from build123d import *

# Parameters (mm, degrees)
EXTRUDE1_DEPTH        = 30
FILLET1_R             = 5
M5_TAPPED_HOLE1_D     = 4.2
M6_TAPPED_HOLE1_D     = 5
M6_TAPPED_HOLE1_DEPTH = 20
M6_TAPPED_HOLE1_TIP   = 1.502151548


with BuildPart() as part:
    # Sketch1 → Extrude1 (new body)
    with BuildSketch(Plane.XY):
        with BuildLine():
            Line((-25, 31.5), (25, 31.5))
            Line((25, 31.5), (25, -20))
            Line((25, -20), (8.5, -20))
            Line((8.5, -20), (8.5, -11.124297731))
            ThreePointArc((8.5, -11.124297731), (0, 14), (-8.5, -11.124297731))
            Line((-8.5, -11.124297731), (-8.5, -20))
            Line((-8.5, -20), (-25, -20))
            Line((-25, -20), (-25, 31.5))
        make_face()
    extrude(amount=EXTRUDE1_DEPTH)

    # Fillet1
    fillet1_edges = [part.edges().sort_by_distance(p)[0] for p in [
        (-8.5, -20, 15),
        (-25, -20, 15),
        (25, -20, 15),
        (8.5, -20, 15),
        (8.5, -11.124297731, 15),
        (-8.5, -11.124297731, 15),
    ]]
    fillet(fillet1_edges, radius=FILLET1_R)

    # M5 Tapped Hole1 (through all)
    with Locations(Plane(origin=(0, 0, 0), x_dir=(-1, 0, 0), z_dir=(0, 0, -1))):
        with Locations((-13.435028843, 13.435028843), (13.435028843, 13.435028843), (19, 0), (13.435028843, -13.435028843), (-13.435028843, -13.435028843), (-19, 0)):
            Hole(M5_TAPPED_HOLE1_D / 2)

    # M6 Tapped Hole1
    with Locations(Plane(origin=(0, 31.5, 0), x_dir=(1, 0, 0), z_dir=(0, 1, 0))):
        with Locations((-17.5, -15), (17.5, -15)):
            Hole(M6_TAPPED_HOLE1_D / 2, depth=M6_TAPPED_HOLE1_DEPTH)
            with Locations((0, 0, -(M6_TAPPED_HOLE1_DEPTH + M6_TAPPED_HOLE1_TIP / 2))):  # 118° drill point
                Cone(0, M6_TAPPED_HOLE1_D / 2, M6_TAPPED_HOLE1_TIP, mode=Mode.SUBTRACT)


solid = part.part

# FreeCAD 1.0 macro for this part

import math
import FreeCAD as App
import Part
import Sketcher


def edges_at(feature, points):
    """Names of the edges that pass closest to the given points."""
    edges = feature.Shape.Edges
    near = lambda p: min(range(len(edges)), key=lambda i: edges[i].distToShape(Part.Vertex(*p))[0])
    return sorted({f"Edge{near(p) + 1}" for p in points})

doc = App.newDocument("Part")
body = doc.addObject("PartDesign::Body", "Body")

# Sketch on XY plane
sketch1 = body.newObject("Sketcher::SketchObject", "Sketch")
sketch1.AttachmentSupport = (doc.getObject("XY_Plane"), [""])
sketch1.MapMode = "FlatFace"
sketch1.addGeometry(Part.LineSegment(App.Vector(25, 32, 0), App.Vector(-25, 32, 0)), False)
sketch1.addGeometry(Part.LineSegment(App.Vector(-25, 32, 0), App.Vector(-25, -20, 0)), False)
sketch1.addGeometry(Part.LineSegment(App.Vector(-25, -20, 0), App.Vector(-8, -20, 0)), False)
sketch1.addGeometry(Part.LineSegment(App.Vector(-8, -20, 0), App.Vector(-8, -11, 0)), False)
sketch1.addGeometry(Part.ArcOfCircle(Part.Circle(App.Vector(0, 0, 0), App.Vector(0, 0, 1), 14), math.radians(-53), math.radians(233)), False)
sketch1.addGeometry(Part.LineSegment(App.Vector(8, -11, 0), App.Vector(8, -20, 0)), False)
sketch1.addGeometry(Part.LineSegment(App.Vector(8, -20, 0), App.Vector(25, -20, 0)), False)
sketch1.addGeometry(Part.LineSegment(App.Vector(25, -20, 0), App.Vector(25, 32, 0)), False)
sketch1.addConstraint(Sketcher.Constraint("Coincident", 0, 2, 1, 1))
sketch1.addConstraint(Sketcher.Constraint("Coincident", 1, 2, 2, 1))
sketch1.addConstraint(Sketcher.Constraint("Coincident", 2, 2, 3, 1))
sketch1.addConstraint(Sketcher.Constraint("Coincident", 3, 2, 4, 2))
sketch1.addConstraint(Sketcher.Constraint("Coincident", 4, 1, 5, 1))
sketch1.addConstraint(Sketcher.Constraint("Coincident", 5, 2, 6, 1))
sketch1.addConstraint(Sketcher.Constraint("Coincident", 6, 2, 7, 1))
sketch1.addConstraint(Sketcher.Constraint("Coincident", 7, 2, 0, 1))
sketch1.addConstraint(Sketcher.Constraint("Horizontal", 0))
sketch1.addConstraint(Sketcher.Constraint("Vertical", 1))
sketch1.addConstraint(Sketcher.Constraint("Horizontal", 2))
sketch1.addConstraint(Sketcher.Constraint("Vertical", 3))
sketch1.addConstraint(Sketcher.Constraint("Vertical", 5))
sketch1.addConstraint(Sketcher.Constraint("Horizontal", 6))
sketch1.addConstraint(Sketcher.Constraint("Vertical", 7))
sketch1.addConstraint(Sketcher.Constraint("Coincident", 4, 3, -1, 1))
sketch1.addConstraint(Sketcher.Constraint("Symmetric", 2, 2, 5, 2, -2))
sketch1.addConstraint(Sketcher.Constraint("Equal", 2, 6))
sketch1.addConstraint(Sketcher.Constraint("Radius", 4, 14.0))
sketch1.addConstraint(Sketcher.Constraint("DistanceX", 0, 2, 0, 1, 50.0))
sketch1.addConstraint(Sketcher.Constraint("DistanceX", 2, 1, 2, 2, 16.5))
sketch1.addConstraint(Sketcher.Constraint("DistanceY", 1, 2, 1, 1, 51.5))
sketch1.addConstraint(Sketcher.Constraint("DistanceY", 1, 2, -1, 1, 20.0))
pad1 = body.newObject("PartDesign::Pad", "Pad")
pad1.Profile = sketch1
pad1.Length = 30
doc.recompute()

fillet = body.newObject("PartDesign::Fillet", "Fillet")
fillet.Base = (pad1, edges_at(pad1, [
    (-8.5, -20, 15),
    (-25, -20, 15),
    (25, -20, 15),
    (8.5, -20, 15),
    (8.5, -11.124, 15),
    (-8.5, -11.124, 15),
]))
fillet.Radius = 5

# Sketch on XY plane
sketch2 = body.newObject("Sketcher::SketchObject", "Sketch001")
sketch2.AttachmentSupport = (doc.getObject("XY_Plane"), [""])
sketch2.MapMode = "FlatFace"
sketch2.addGeometry(Part.Circle(App.Vector(13.4, 13.4, 0), App.Vector(0, 0, 1), 2.1), False)
sketch2.addGeometry(Part.Circle(App.Vector(-13.4, 13.4, 0), App.Vector(0, 0, 1), 2.1), False)
sketch2.addGeometry(Part.Circle(App.Vector(-19, 0, 0), App.Vector(0, 0, 1), 2.1), False)
sketch2.addGeometry(Part.Circle(App.Vector(-13.4, -13.4, 0), App.Vector(0, 0, 1), 2.1), False)
sketch2.addGeometry(Part.Circle(App.Vector(13.4, -13.4, 0), App.Vector(0, 0, 1), 2.1), False)
sketch2.addGeometry(Part.Circle(App.Vector(19, 0, 0), App.Vector(0, 0, 1), 2.1), False)
sketch2.addConstraint(Sketcher.Constraint("Equal", 0, 1))
sketch2.addConstraint(Sketcher.Constraint("Equal", 1, 2))
sketch2.addConstraint(Sketcher.Constraint("Equal", 2, 3))
sketch2.addConstraint(Sketcher.Constraint("Equal", 3, 4))
sketch2.addConstraint(Sketcher.Constraint("Equal", 4, 5))
sketch2.addConstraint(Sketcher.Constraint("Symmetric", 0, 3, 3, 3, -1, 1))
sketch2.addConstraint(Sketcher.Constraint("Symmetric", 1, 3, 4, 3, -1, 1))
sketch2.addConstraint(Sketcher.Constraint("Symmetric", 2, 3, 5, 3, -1, 1))
sketch2.addConstraint(Sketcher.Constraint("Symmetric", 0, 3, 1, 3, -2))
sketch2.addConstraint(Sketcher.Constraint("PointOnObject", 2, 3, -1))
sketch2.addConstraint(Sketcher.Constraint("Diameter", 0, 4.2))
sketch2.addConstraint(Sketcher.Constraint("DistanceX", 2, 3, -1, 1, 19.0))
sketch2.addConstraint(Sketcher.Constraint("DistanceX", -1, 1, 0, 3, 13.435029))
sketch2.addConstraint(Sketcher.Constraint("DistanceY", -1, 1, 0, 3, 13.435029))
doc.recompute()
hole = body.newObject("PartDesign::Hole", "Hole")
hole.Profile = sketch2
hole.ThreadType = "None"
hole.Diameter = 4.2
hole.DepthType = "ThroughAll"
hole.Reversed = True

# Sketch on XZ plane
sketch3 = body.newObject("Sketcher::SketchObject", "Sketch002")
sketch3.AttachmentSupport = (doc.getObject("XZ_Plane"), [""])
sketch3.MapMode = "FlatFace"
sketch3.AttachmentOffset = App.Placement(App.Vector(0, 0, -31.5), App.Rotation())
sketch3.addGeometry(Part.Circle(App.Vector(-17.5, 15, 0), App.Vector(0, 0, 1), 2.5), False)
sketch3.addGeometry(Part.Circle(App.Vector(17.5, 15, 0), App.Vector(0, 0, 1), 2.5), False)
sketch3.addConstraint(Sketcher.Constraint("Equal", 0, 1))
sketch3.addConstraint(Sketcher.Constraint("Symmetric", 0, 3, 1, 3, -2))
sketch3.addConstraint(Sketcher.Constraint("Diameter", 0, 5.0))
sketch3.addConstraint(Sketcher.Constraint("DistanceY", -1, 1, 0, 3, 15.0))
sketch3.addConstraint(Sketcher.Constraint("DistanceX", 0, 3, 1, 3, 35.0))
doc.recompute()
hole2 = body.newObject("PartDesign::Hole", "Hole001")
hole2.Profile = sketch3
hole2.ThreadType = "None"
hole2.Diameter = 5
hole2.DepthType = "Dimension"
hole2.Depth = 20
hole2.DrillPoint = "Angled"
hole2.DrillPointAngle = 118
hole2.Reversed = True

doc.recompute()
